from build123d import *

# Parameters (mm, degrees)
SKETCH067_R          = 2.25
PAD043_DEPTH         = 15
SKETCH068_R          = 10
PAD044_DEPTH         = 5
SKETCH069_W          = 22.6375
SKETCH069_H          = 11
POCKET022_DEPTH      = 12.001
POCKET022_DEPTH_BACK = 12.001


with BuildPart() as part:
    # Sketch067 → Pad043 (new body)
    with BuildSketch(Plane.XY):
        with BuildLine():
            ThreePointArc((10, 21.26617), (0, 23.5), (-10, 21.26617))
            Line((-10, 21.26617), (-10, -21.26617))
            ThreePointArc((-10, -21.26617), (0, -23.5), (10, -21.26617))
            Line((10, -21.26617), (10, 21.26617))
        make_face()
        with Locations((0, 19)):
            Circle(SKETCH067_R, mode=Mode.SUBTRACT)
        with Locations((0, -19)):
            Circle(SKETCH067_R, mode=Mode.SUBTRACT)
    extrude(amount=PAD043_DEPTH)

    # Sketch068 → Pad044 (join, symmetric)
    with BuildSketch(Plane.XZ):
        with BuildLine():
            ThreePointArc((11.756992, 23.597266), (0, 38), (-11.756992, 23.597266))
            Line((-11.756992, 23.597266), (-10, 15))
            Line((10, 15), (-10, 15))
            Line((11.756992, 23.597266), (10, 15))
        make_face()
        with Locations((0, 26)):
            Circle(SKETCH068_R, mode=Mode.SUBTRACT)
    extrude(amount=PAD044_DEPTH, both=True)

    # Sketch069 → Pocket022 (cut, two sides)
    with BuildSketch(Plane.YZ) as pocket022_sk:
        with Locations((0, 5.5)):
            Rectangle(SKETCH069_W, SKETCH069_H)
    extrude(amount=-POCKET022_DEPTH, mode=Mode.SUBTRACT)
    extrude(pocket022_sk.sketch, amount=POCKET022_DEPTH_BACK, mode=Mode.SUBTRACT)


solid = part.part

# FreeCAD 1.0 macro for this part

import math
import FreeCAD as App
import Part
import Sketcher

V = App.Vector


def add_polygon(sketch, points):
    """Adds a closed chain of lines whose ends are joined by coincident constraints."""
    first, n = sketch.GeometryCount, len(points)
    for a, b in zip(points, points[1:] + points[:1]):
        sketch.addGeometry(Part.LineSegment(App.Vector(*a, 0), App.Vector(*b, 0)), False)
    for i in range(n):
        sketch.addConstraint(Sketcher.Constraint("Coincident", first + i, 2, first + (i + 1) % n, 1))

doc = App.newDocument("Part")
body = doc.addObject("PartDesign::Body", "Body")

# Sketch on XY plane
sketch1 = body.newObject("Sketcher::SketchObject", "Sketch")
sketch1.AttachmentSupport = (doc.getObject("XY_Plane"), [""])
sketch1.MapMode = "FlatFace"
sketch1.addGeometry(Part.ArcOfCircle(Part.Circle(V(0, 0.000003, 0), V(0, 0, 1), 23.499997), math.radians(64.81566), math.radians(115.18434)), False)
sketch1.addGeometry(Part.LineSegment(V(-10, 21.26617, 0), V(-10, -21.26617, 0)), False)
sketch1.addGeometry(Part.ArcOfCircle(Part.Circle(V(0, -0.000003, 0), V(0, 0, 1), 23.499997), math.radians(-115.18434), math.radians(-64.81566)), False)
sketch1.addGeometry(Part.LineSegment(V(10, -21.26617, 0), V(10, 21.26617, 0)), False)
sketch1.addGeometry(Part.Circle(V(0, -19, 0), V(0, 0, 1), 2.25), False)
sketch1.addGeometry(Part.Circle(V(0, 19, 0), V(0, 0, 1), 2.25), False)
sketch1.addConstraint(Sketcher.Constraint("Coincident", 0, 2, 1, 1))
sketch1.addConstraint(Sketcher.Constraint("Coincident", 1, 2, 2, 1))
sketch1.addConstraint(Sketcher.Constraint("Coincident", 2, 2, 3, 1))
sketch1.addConstraint(Sketcher.Constraint("Coincident", 3, 2, 0, 1))
sketch1.addConstraint(Sketcher.Constraint("Vertical", 1))
sketch1.addConstraint(Sketcher.Constraint("Vertical", 3))
sketch1.addConstraint(Sketcher.Constraint("Coincident", 0, 3, -1, 1))
sketch1.addConstraint(Sketcher.Constraint("Coincident", 2, 3, -1, 1))
sketch1.addConstraint(Sketcher.Constraint("Equal", 0, 2))
sketch1.addConstraint(Sketcher.Constraint("Equal", 4, 5))
sketch1.addConstraint(Sketcher.Constraint("Symmetric", 4, 3, 5, 3, -1, 1))
sketch1.addConstraint(Sketcher.Constraint("PointOnObject", 4, 3, -2))
sketch1.addConstraint(Sketcher.Constraint("Horizontal", 1, 2, 2, 2))
sketch1.addConstraint(Sketcher.Constraint("Diameter", 4, 4.5))
sketch1.addConstraint(Sketcher.Constraint("DistanceY", 4, 3, -1, 1, 19.0))
sketch1.addConstraint(Sketcher.Constraint("DistanceX", 0, 2, -1, 1, 10.0))
sketch1.addConstraint(Sketcher.Constraint("Radius", 0, 23.499997))
pad1 = body.newObject("PartDesign::Pad", "Pad")
pad1.Profile = sketch1
pad1.Length = 15

# Sketch on XZ plane
sketch2 = body.newObject("Sketcher::SketchObject", "Sketch001")
sketch2.AttachmentSupport = (doc.getObject("XZ_Plane"), [""])
sketch2.MapMode = "FlatFace"
sketch2.addGeometry(Part.ArcOfCircle(Part.Circle(V(0, 26, 0), V(0, 0, 1), 12), math.radians(-11.550284), math.radians(191.550284)), False)
sketch2.addGeometry(Part.LineSegment(V(-11.756992, 23.597266, 0), V(-10, 15, 0)), False)
sketch2.addGeometry(Part.LineSegment(V(-10, 15, 0), V(10, 15, 0)), False)
sketch2.addGeometry(Part.LineSegment(V(10, 15, 0), V(11.756992, 23.597266, 0)), False)
sketch2.addGeometry(Part.Circle(V(0, 26, 0), V(0, 0, 1), 10), False)
sketch2.addConstraint(Sketcher.Constraint("Tangent", 0, 2, 1, 1))
sketch2.addConstraint(Sketcher.Constraint("Coincident", 1, 2, 2, 1))
sketch2.addConstraint(Sketcher.Constraint("Coincident", 2, 2, 3, 1))
sketch2.addConstraint(Sketcher.Constraint("Tangent", 3, 2, 0, 1))
sketch2.addConstraint(Sketcher.Constraint("Horizontal", 2))
sketch2.addConstraint(Sketcher.Constraint("Coincident", 4, 3, 0, 3))
sketch2.addConstraint(Sketcher.Constraint("Symmetric", 0, 2, 3, 2, -2))
sketch2.addConstraint(Sketcher.Constraint("Diameter", 4, 20.0))
sketch2.addConstraint(Sketcher.Constraint("Radius", 0, 12.0))
sketch2.addConstraint(Sketcher.Constraint("DistanceX", 2, 1, 2, 2, 20.0))
sketch2.addConstraint(Sketcher.Constraint("DistanceY", -1, 1, 0, 3, 26.0))
sketch2.addConstraint(Sketcher.Constraint("DistanceY", -1, 1, 1, 2, 15.0))
pad2 = body.newObject("PartDesign::Pad", "Pad001")
pad2.Profile = sketch2
pad2.Length = 10
pad2.Midplane = True

# Sketch on YZ plane
sketch3 = body.newObject("Sketcher::SketchObject", "Sketch002")
sketch3.AttachmentSupport = (doc.getObject("YZ_Plane"), [""])
sketch3.MapMode = "FlatFace"
add_polygon(sketch3, [(-11.31875, 11), (-11.31875, 0), (11.31875, 0), (11.31875, 11)])  # lines 0-3
sketch3.addConstraint(Sketcher.Constraint("Vertical", 0))
sketch3.addConstraint(Sketcher.Constraint("Horizontal", 1))
sketch3.addConstraint(Sketcher.Constraint("Vertical", 2))
sketch3.addConstraint(Sketcher.Constraint("Horizontal", 3))
sketch3.addConstraint(Sketcher.Constraint("Symmetric", 0, 2, 1, 2, -1, 1))
sketch3.addConstraint(Sketcher.Constraint("DistanceY", 0, 2, 0, 1, 11.0))
sketch3.addConstraint(Sketcher.Constraint("DistanceX", 1, 1, 1, 2, 22.6375))
pocket1 = body.newObject("PartDesign::Pocket", "Pocket")
pocket1.Profile = sketch3
pocket1.Type = "ThroughAll"
pocket1.Midplane = True

doc.recompute()
